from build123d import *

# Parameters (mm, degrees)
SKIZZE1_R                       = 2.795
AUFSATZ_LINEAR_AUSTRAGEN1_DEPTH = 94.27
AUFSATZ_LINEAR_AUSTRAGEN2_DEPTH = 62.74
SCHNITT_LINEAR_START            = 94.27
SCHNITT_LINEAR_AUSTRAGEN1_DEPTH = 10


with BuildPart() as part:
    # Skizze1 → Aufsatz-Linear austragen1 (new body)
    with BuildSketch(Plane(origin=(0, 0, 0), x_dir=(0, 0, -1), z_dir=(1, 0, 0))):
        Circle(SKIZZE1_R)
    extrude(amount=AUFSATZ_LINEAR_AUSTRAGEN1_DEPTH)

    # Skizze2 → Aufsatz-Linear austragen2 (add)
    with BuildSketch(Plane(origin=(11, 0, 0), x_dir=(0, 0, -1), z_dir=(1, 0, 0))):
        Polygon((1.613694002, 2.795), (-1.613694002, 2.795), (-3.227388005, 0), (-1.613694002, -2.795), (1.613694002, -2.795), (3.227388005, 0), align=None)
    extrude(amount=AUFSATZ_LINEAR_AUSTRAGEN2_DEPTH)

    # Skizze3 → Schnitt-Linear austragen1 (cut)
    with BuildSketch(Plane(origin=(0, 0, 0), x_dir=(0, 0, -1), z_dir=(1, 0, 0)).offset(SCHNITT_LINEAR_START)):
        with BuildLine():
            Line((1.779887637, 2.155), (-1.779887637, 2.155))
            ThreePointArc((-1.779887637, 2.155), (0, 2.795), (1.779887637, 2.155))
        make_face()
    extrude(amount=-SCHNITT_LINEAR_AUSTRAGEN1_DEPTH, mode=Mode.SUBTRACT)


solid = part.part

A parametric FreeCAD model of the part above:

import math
import FreeCAD as App
import Part
import Sketcher
from FreeCAD import Vector
Q = App.Units.Quantity


def add_polygon(sketch, points):
    """Adds a closed chain of lines whose ends are joined by coincident constraints."""
    first, n = sketch.GeometryCount, len(points)
    for a, b in zip(points, points[1:] + points[:1]):
        sketch.addGeometry(Part.LineSegment(App.Vector(*a, 0), App.Vector(*b, 0)), False)
    for i in range(n):
        sketch.addConstraint(Sketcher.Constraint("Coincident", first + i, 2, first + (i + 1) % n, 1))

doc = App.newDocument("Part")
body = doc.addObject("PartDesign::Body", "Body")

# Sketch on YZ plane
sketch1 = body.newObject("Sketcher::SketchObject", "Sketch")
sketch1.AttachmentSupport = (doc.getObject("YZ_Plane"), [""])
sketch1.MapMode = "FlatFace"
sketch1.addGeometry(Part.Circle(Vector(0, 0, 0), Vector(0, 0, 1), 2.795), False)
sketch1.addConstraint([
    Sketcher.Constraint("Coincident", 0, 3, -1, 1),
    Sketcher.Constraint("Diameter", 0, Q("5.59 mm")),
])
pad1 = body.newObject("PartDesign::Pad", "Pad")
pad1.Profile = sketch1
pad1.Length = 94.27

# Sketch on YZ plane
sketch2 = body.newObject("Sketcher::SketchObject", "Sketch001")
sketch2.AttachmentSupport = (doc.getObject("YZ_Plane"), [""])
sketch2.MapMode = "FlatFace"
sketch2.AttachmentOffset = App.Placement(Vector(0, 0, 11), App.Rotation())
add_polygon(sketch2, [(2.795, -1.613694), (2.795, 1.613694), (0, 3.227388), (-2.795, 1.613694), (-2.795, -1.613694), (0, -3.227388)])  # lines 0-5
sketch2.addConstraint([
    Sketcher.Constraint("Vertical", 0),
    Sketcher.Constraint("Vertical", 3),
    Sketcher.Constraint("Symmetric", 0, 2, 3, 2, -1, 1),
    Sketcher.Constraint("Symmetric", 1, 2, 4, 2, -1, 1),
    Sketcher.Constraint("PointOnObject", 1, 2, -2),
    Sketcher.Constraint("Parallel", 2, 5),
    Sketcher.Constraint("Horizontal", 0, 2, 2, 2),
    Sketcher.Constraint("Angle", 1, Q("150 deg")),
    Sketcher.Constraint("DistanceX", 2, 2, 0, 2, Q("5.59 mm")),
    Sketcher.Constraint("DistanceY", 0, 1, 0, 2, Q("3.227388 mm")),
])
pad2 = body.newObject("PartDesign::Pad", "Pad001")
pad2.Profile = sketch2
pad2.Length = 62.74

# Sketch on YZ plane
sketch3 = body.newObject("Sketcher::SketchObject", "Sketch002")
sketch3.AttachmentSupport = (doc.getObject("YZ_Plane"), [""])
sketch3.MapMode = "FlatFace"
sketch3.AttachmentOffset = App.Placement(Vector(0, 0, 94.27), App.Rotation())
sketch3.addGeometry([
    Part.LineSegment(Vector(2.155, 1.779888, 0), Vector(2.155, -1.779888, 0)),
    Part.ArcOfCircle(Part.Circle(Vector(0, 0, 0), Vector(0, 0, 1), 2.795), math.radians(-39.554456), math.radians(39.554456)),
], False)
sketch3.addConstraint([
    Sketcher.Constraint("Coincident", 0, 1, 1, 2),
    Sketcher.Constraint("Coincident", 1, 1, 0, 2),
    Sketcher.Constraint("Vertical", 0),
    Sketcher.Constraint("Coincident", 1, 3, -1, 1),
    Sketcher.Constraint("Radius", 1, Q("2.795 mm")),
    Sketcher.Constraint("DistanceX", -1, 1, 0, 1, Q("2.155 mm")),
])
pocket1 = body.newObject("PartDesign::Pocket", "Pocket")
pocket1.Profile = sketch3
pocket1.Length = 10

doc.recompute()
